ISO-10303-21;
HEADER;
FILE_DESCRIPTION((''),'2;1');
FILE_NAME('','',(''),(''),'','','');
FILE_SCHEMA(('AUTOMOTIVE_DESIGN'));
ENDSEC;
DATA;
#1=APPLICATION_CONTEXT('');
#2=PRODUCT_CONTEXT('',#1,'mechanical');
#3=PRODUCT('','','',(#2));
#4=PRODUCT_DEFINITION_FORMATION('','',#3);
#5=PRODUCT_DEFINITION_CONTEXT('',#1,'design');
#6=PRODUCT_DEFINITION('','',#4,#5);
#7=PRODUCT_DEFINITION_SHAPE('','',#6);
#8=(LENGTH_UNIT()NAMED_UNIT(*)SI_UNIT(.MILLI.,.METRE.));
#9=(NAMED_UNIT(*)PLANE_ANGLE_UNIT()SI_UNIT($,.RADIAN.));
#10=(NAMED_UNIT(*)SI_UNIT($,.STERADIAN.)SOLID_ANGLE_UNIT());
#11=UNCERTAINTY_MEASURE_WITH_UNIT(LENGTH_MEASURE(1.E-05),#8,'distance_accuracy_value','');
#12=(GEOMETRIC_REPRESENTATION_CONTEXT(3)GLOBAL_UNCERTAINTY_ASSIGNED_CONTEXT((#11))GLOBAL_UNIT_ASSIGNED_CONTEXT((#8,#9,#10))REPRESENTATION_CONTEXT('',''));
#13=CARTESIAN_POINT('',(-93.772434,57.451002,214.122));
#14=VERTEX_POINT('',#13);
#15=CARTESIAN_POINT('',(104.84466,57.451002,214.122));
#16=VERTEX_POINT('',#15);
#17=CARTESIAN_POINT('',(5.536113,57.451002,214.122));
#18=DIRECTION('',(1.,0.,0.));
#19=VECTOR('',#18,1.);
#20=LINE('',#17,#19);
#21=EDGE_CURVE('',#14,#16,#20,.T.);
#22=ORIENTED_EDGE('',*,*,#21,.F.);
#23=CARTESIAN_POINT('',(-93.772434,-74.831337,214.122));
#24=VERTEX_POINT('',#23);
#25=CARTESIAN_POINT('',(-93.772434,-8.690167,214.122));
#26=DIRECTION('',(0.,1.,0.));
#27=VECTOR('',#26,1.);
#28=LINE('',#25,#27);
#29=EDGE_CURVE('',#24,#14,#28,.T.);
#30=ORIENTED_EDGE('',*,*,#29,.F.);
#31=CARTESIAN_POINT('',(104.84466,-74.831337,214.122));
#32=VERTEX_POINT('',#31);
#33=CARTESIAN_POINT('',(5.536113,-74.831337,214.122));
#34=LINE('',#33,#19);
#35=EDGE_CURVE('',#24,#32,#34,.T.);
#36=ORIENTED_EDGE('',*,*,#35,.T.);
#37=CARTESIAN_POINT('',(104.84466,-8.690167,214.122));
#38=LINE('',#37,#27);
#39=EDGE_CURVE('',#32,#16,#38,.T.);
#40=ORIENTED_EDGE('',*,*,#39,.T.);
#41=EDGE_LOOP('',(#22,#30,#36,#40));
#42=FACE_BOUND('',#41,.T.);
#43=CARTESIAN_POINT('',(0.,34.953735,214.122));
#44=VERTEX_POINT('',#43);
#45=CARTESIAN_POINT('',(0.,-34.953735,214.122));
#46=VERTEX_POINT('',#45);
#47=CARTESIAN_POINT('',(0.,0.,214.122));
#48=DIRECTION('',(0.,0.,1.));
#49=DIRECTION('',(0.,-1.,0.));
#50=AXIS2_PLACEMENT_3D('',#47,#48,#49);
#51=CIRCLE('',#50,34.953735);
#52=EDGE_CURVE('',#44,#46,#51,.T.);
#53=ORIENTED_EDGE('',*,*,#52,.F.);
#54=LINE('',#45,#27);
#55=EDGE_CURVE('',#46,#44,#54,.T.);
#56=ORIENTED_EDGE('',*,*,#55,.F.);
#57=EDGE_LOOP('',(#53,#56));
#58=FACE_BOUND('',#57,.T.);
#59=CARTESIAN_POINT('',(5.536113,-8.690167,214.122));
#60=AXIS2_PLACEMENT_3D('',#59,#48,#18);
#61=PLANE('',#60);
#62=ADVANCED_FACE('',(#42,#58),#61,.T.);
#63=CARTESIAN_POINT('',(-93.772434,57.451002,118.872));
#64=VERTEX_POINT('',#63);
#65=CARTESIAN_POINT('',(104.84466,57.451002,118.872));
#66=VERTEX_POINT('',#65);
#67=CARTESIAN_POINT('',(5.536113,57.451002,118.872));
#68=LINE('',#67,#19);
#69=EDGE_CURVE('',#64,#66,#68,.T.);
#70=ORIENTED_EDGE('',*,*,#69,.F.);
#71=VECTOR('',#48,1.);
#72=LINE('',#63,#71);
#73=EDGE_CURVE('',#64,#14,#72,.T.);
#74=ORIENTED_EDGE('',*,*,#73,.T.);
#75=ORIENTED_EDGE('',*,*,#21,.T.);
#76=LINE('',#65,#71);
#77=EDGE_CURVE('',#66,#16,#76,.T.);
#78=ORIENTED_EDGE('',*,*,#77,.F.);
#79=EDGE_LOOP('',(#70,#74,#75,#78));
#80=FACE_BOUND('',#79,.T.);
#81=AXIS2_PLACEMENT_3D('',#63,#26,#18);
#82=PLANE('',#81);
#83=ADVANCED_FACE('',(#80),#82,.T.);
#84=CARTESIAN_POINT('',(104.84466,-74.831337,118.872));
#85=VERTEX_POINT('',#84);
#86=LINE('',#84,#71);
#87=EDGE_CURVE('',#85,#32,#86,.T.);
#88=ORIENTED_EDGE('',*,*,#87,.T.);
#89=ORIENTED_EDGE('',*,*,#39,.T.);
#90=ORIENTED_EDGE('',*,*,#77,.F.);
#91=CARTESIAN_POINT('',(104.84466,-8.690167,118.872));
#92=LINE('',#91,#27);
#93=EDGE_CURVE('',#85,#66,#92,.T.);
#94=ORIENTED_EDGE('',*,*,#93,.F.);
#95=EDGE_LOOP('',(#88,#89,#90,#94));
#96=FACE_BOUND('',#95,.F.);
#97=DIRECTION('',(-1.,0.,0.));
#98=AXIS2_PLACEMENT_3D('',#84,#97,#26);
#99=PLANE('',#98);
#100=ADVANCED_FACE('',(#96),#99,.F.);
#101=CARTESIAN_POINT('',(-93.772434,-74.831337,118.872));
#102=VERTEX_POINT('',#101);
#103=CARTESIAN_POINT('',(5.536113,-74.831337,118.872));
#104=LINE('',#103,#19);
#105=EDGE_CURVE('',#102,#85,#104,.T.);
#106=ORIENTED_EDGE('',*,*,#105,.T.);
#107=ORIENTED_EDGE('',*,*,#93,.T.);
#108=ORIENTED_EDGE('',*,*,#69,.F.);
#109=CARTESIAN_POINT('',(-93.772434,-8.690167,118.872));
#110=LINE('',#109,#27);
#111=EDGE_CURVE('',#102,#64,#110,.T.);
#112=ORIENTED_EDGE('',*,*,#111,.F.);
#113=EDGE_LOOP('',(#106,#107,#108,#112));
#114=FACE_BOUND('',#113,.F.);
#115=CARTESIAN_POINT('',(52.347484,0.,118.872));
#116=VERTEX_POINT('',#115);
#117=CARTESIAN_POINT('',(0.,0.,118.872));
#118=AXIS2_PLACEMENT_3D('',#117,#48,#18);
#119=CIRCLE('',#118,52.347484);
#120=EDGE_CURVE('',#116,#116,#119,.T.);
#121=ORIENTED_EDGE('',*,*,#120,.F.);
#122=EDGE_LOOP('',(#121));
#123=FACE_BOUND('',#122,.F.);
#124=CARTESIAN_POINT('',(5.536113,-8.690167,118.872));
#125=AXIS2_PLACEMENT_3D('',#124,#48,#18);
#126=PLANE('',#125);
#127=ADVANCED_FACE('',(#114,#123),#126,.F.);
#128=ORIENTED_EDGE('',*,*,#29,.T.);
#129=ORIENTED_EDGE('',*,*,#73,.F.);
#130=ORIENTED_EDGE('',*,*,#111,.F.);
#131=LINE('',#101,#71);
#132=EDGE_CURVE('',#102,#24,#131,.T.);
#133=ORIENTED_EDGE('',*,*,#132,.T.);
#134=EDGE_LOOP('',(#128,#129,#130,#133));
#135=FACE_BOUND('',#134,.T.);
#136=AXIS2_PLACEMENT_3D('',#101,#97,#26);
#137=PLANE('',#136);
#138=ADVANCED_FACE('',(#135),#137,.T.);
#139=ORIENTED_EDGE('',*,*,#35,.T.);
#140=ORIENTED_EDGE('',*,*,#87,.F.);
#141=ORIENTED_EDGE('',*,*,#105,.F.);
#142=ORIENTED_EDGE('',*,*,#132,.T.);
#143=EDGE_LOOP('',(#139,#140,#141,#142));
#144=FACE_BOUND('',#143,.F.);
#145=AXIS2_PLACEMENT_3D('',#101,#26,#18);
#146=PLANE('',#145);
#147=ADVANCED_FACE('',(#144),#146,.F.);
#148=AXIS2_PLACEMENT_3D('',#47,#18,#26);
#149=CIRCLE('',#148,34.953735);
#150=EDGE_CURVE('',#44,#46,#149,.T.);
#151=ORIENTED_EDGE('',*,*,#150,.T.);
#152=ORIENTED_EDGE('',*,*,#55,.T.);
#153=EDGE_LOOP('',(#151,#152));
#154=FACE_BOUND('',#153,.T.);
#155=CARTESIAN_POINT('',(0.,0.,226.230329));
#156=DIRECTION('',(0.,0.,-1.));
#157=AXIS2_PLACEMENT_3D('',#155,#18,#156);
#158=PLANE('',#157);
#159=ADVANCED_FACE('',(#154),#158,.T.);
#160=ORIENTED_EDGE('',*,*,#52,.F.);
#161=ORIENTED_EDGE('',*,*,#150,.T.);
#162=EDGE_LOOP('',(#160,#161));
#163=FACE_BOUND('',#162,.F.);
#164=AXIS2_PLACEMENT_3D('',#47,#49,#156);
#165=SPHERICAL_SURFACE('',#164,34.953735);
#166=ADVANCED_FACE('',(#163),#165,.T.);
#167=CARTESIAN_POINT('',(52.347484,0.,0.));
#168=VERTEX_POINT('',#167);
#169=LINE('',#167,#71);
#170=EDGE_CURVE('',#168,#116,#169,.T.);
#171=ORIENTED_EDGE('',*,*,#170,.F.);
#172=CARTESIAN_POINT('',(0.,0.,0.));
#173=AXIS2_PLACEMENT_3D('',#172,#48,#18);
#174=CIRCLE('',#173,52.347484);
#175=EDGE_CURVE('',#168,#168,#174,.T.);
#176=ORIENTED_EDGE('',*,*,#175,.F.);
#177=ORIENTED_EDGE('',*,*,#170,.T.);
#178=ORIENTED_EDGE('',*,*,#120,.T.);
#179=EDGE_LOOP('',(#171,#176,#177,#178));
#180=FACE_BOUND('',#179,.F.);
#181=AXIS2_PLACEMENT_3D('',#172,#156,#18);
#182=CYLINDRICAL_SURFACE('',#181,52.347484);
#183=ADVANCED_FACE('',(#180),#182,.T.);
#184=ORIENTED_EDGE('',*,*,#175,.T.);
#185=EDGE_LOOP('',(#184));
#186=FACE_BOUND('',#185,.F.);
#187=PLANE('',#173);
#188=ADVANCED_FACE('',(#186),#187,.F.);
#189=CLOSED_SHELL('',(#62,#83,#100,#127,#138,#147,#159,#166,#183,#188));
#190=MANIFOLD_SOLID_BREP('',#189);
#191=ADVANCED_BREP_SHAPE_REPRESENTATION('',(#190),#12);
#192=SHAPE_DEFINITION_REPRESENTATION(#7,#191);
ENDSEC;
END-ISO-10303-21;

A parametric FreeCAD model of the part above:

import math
import FreeCAD as App
import Part
import Sketcher
from FreeCAD import Vector
Q = App.Units.Quantity


def add_polygon(sketch, points):
    """Adds a closed chain of lines whose ends are joined by coincident constraints."""
    first, n = sketch.GeometryCount, len(points)
    for a, b in zip(points, points[1:] + points[:1]):
        sketch.addGeometry(Part.LineSegment(App.Vector(*a, 0), App.Vector(*b, 0)), False)
    for i in range(n):
        sketch.addConstraint(Sketcher.Constraint("Coincident", first + i, 2, first + (i + 1) % n, 1))

doc = App.newDocument("Part")
body = doc.addObject("PartDesign::Body", "Body")

# Sketch on XY plane
sketch1 = doc.addObject("Sketcher::SketchObject", "Sketch")
body.addObject(sketch1)
sketch1.AttachmentSupport = (doc.XY_Plane, [""])
sketch1.MapMode = "FlatFace"
sketch1.addGeometry(Part.Circle(Vector(0, 0, 0), Vector(0, 0, 1), 52), False)
sketch1.addConstraint([
    Sketcher.Constraint("Coincident", 0, 3, -1, 1),
    Sketcher.Constraint("Diameter", 0, Q("104.694969 mm")),
])
pad1 = doc.addObject("PartDesign::Pad", "Pad")
body.addObject(pad1)
pad1.Profile = sketch1
pad1.Length = Q("4.68 in")

# Sketch on XY plane
sketch2 = doc.addObject("Sketcher::SketchObject", "Sketch001")
body.addObject(sketch2)
sketch2.AttachmentSupport = (doc.XY_Plane, [""])
sketch2.MapMode = "FlatFace"
sketch2.AttachmentOffset = App.Placement(Vector(0, 0, 4.68 * 25.4), App.Rotation())
add_polygon(sketch2, [(-94, 57), (-94, -75), (105, -75), (105, 57)])  # lines 0-3
sketch2.addConstraint([
    Sketcher.Constraint("Vertical", 0),
    Sketcher.Constraint("Horizontal", 1),
    Sketcher.Constraint("Vertical", 2),
    Sketcher.Constraint("Horizontal", 3),
    Sketcher.Constraint("DistanceY", 0, 2, 0, 1, Q("132.282339 mm")),
    Sketcher.Constraint("DistanceX", 1, 1, 1, 2, Q("198.617093 mm")),
    Sketcher.Constraint("DistanceX", -1, 1, 1, 2, Q("104.84466 mm")),
    Sketcher.Constraint("DistanceY", 0, 2, -1, 1, Q("74.831337 mm")),
])
pad2 = doc.addObject("PartDesign::Pad", "Pad001")
body.addObject(pad2)
pad2.Profile = sketch2
pad2.Length = Q("3.75 in")

# Sketch on YZ plane
sketch3 = doc.addObject("Sketcher::SketchObject", "Sketch002")
body.addObject(sketch3)
sketch3.AttachmentSupport = (doc.YZ_Plane, [""])
sketch3.MapMode = "FlatFace"
sketch3.addGeometry([
    Part.LineSegment(Vector(-35, 214, 0), Vector(35, 214, 0)),
    Part.ArcOfCircle(Part.Circle(Vector(0, 214, 0), Vector(0, 0, 1), 35), math.radians(180), math.radians(360)),
], False)
sketch3.addGeometry(Part.LineSegment(Vector(-35, 214, 0), Vector(35, 214, 0)), True)  # axis
sketch3.addConstraint([
    Sketcher.Constraint("Coincident", 0, 1, 1, 1),
    Sketcher.Constraint("Coincident", 1, 2, 0, 2),
    Sketcher.Constraint("Horizontal", 0),
    Sketcher.Constraint("Horizontal", 2),
    Sketcher.Constraint("Coincident", 2, 1, 0, 1),
    Sketcher.Constraint("PointOnObject", 1, 3, -2),
    Sketcher.Constraint("Horizontal", 1, 3, 0, 1),
    Sketcher.Constraint("Equal", 0, 2),
    Sketcher.Constraint("DistanceY", -1, 1, 1, 3, Q("8.43 in")),
    Sketcher.Constraint("Radius", 1, Q("34.953735 mm")),
])
revolution = doc.addObject("PartDesign::Revolution", "Revolution")
body.addObject(revolution)
revolution.Profile = sketch3
revolution.ReferenceAxis = (sketch3, ["Axis0"])
revolution.Angle = 180

doc.recompute()
